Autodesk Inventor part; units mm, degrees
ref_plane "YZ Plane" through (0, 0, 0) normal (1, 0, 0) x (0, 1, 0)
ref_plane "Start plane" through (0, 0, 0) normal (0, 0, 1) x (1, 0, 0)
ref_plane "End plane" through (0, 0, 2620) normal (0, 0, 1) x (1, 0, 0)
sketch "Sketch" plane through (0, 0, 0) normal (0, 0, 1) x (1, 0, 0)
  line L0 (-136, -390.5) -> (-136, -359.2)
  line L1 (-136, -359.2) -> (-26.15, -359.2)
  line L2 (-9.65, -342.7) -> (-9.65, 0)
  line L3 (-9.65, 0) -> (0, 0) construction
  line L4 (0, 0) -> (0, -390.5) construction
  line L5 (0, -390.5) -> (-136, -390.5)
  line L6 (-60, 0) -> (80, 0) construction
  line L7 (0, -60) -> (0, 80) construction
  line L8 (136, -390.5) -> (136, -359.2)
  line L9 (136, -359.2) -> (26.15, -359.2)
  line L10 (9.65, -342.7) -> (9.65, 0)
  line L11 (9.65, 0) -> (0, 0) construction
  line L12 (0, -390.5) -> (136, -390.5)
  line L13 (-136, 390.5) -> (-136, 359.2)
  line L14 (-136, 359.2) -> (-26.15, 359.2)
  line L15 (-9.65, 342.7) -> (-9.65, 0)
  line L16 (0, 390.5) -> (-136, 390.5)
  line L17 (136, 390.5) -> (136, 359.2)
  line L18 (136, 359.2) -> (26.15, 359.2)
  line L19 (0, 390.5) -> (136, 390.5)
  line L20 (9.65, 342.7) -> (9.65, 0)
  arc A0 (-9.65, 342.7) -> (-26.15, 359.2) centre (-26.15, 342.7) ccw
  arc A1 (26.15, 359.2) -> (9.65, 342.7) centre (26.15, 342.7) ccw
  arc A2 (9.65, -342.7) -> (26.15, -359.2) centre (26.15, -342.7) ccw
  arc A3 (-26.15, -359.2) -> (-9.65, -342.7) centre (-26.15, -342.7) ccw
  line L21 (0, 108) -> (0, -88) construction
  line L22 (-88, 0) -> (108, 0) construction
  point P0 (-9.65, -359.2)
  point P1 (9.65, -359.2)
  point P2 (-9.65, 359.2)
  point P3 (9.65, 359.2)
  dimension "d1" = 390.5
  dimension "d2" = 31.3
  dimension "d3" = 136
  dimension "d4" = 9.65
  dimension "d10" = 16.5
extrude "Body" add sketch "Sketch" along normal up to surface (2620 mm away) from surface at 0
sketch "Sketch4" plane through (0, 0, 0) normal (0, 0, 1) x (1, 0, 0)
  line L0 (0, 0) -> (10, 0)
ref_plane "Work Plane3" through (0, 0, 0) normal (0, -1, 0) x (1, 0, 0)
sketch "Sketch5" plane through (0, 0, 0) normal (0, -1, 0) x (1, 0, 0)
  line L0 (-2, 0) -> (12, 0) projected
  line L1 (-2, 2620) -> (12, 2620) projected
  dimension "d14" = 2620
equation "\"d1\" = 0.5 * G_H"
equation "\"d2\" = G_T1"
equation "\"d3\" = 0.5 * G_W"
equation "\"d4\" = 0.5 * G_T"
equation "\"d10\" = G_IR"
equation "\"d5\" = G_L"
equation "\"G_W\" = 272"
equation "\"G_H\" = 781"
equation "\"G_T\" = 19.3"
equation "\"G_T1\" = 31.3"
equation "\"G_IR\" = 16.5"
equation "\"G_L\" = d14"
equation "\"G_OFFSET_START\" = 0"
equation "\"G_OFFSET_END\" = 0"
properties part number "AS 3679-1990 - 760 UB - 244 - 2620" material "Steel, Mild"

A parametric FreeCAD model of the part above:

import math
import FreeCAD as App
import Part
import Sketcher
from FreeCAD import Vector

doc = App.newDocument("Part")
params = doc.addObject("Spreadsheet::Sheet", "Params")
for row, (alias, value) in enumerate([
    ("sketch1_radius", "16.5 mm"),
    ("sketch1_height", "31.3 mm"),
    ("pad1_length", "2620 mm"),
], start=1):
    params.set(f"A{row}", alias)
    params.set(f"B{row}", "=" + value)
    params.setAlias(f"B{row}", alias)

body = doc.addObject("PartDesign::Body", "Body")

sketch1 = body.newObject("Sketcher::SketchObject", "Sketch")
sketch1.AttachmentSupport = (doc.getObject("XY_Plane"), [""])
sketch1.MapMode = "FlatFace"
sketch1.addGeometry([
    Part.LineSegment(Vector(-136, -359.2, 0), Vector(-136, -390.5, 0)),
    Part.LineSegment(Vector(-136, -390.5, 0), Vector(136, -390.5, 0)),
    Part.LineSegment(Vector(136, -390.5, 0), Vector(136, -359.2, 0)),
    Part.LineSegment(Vector(136, -359.2, 0), Vector(26.15, -359.2, 0)),
    Part.ArcOfCircle(Part.Circle(Vector(26.15, -342.7, 0), Vector(0, 0, 1), 16.5), math.radians(180), math.radians(270)),
    Part.LineSegment(Vector(9.65, -342.7, 0), Vector(9.65, 342.7, 0)),
    Part.ArcOfCircle(Part.Circle(Vector(26.15, 342.7, 0), Vector(0, 0, 1), 16.5), math.radians(90), math.radians(180)),
    Part.LineSegment(Vector(26.15, 359.2, 0), Vector(136, 359.2, 0)),
    Part.LineSegment(Vector(136, 359.2, 0), Vector(136, 390.5, 0)),
    Part.LineSegment(Vector(136, 390.5, 0), Vector(-136, 390.5, 0)),
    Part.LineSegment(Vector(-136, 390.5, 0), Vector(-136, 359.2, 0)),
    Part.LineSegment(Vector(-136, 359.2, 0), Vector(-26.15, 359.2, 0)),
    Part.ArcOfCircle(Part.Circle(Vector(-26.15, 342.7, 0), Vector(0, 0, 1), 16.5), math.radians(0), math.radians(90)),
    Part.LineSegment(Vector(-9.65, 342.7, 0), Vector(-9.65, -342.7, 0)),
    Part.ArcOfCircle(Part.Circle(Vector(-26.15, -342.7, 0), Vector(0, 0, 1), 16.5), math.radians(-90), math.radians(0)),
    Part.LineSegment(Vector(-26.15, -359.2, 0), Vector(-136, -359.2, 0)),
], False)
sketch1.addConstraint([
    Sketcher.Constraint("Coincident", 0, 2, 1, 1),
    Sketcher.Constraint("Coincident", 1, 2, 2, 1),
    Sketcher.Constraint("Coincident", 2, 2, 3, 1),
    Sketcher.Constraint("Tangent", 3, 2, 4, 2),
    Sketcher.Constraint("Tangent", 4, 1, 5, 1),
    Sketcher.Constraint("Tangent", 5, 2, 6, 2),
    Sketcher.Constraint("Tangent", 6, 1, 7, 1),
    Sketcher.Constraint("Coincident", 7, 2, 8, 1),
    Sketcher.Constraint("Coincident", 8, 2, 9, 1),
    Sketcher.Constraint("Coincident", 9, 2, 10, 1),
    Sketcher.Constraint("Coincident", 10, 2, 11, 1),
    Sketcher.Constraint("Tangent", 11, 2, 12, 2),
    Sketcher.Constraint("Tangent", 12, 1, 13, 1),
    Sketcher.Constraint("Tangent", 13, 2, 14, 2),
    Sketcher.Constraint("Tangent", 14, 1, 15, 1),
    Sketcher.Constraint("Coincident", 15, 2, 0, 1),
    Sketcher.Constraint("Vertical", 0),
    Sketcher.Constraint("Horizontal", 1),
    Sketcher.Constraint("Vertical", 2),
    Sketcher.Constraint("Horizontal", 3),
    Sketcher.Constraint("Vertical", 5),
    Sketcher.Constraint("Horizontal", 7),
    Sketcher.Constraint("Vertical", 8),
    Sketcher.Constraint("Horizontal", 9),
    Sketcher.Constraint("Vertical", 10),
    Sketcher.Constraint("Horizontal", 11),
    Sketcher.Constraint("Vertical", 13),
    Sketcher.Constraint("Horizontal", 15),
    Sketcher.Constraint("Equal", 4, 6),
    Sketcher.Constraint("Equal", 6, 12),
    Sketcher.Constraint("Equal", 12, 14),
    Sketcher.Constraint("Symmetric", 4, 3, 12, 3, -1, 1),
    Sketcher.Constraint("Symmetric", 0, 2, 8, 2, -1, 1),
    Sketcher.Constraint("Symmetric", 7, 2, 10, 2, -2),
    Sketcher.Constraint("Symmetric", 2, 2, 15, 2, -2),
    Sketcher.Constraint("Radius", 4, 16.5),
    Sketcher.Constraint("DistanceY", 0, 2, 0, 1, 31.3),
    Sketcher.Constraint("DistanceX", 0, 2, -1, 1, 136.0),
    Sketcher.Constraint("DistanceY", 0, 2, -1, 1, 390.5),
    Sketcher.Constraint("DistanceX", -1, 1, 4, 1, 9.65),
])
sketch1.setExpression("Constraints[35]", "Params.sketch1_radius")
sketch1.setExpression("Constraints[36]", "Params.sketch1_height")
pad1 = body.newObject("PartDesign::Pad", "Pad")
pad1.Profile = sketch1
pad1.setExpression("Length", "Params.pad1_length")

doc.recompute()
